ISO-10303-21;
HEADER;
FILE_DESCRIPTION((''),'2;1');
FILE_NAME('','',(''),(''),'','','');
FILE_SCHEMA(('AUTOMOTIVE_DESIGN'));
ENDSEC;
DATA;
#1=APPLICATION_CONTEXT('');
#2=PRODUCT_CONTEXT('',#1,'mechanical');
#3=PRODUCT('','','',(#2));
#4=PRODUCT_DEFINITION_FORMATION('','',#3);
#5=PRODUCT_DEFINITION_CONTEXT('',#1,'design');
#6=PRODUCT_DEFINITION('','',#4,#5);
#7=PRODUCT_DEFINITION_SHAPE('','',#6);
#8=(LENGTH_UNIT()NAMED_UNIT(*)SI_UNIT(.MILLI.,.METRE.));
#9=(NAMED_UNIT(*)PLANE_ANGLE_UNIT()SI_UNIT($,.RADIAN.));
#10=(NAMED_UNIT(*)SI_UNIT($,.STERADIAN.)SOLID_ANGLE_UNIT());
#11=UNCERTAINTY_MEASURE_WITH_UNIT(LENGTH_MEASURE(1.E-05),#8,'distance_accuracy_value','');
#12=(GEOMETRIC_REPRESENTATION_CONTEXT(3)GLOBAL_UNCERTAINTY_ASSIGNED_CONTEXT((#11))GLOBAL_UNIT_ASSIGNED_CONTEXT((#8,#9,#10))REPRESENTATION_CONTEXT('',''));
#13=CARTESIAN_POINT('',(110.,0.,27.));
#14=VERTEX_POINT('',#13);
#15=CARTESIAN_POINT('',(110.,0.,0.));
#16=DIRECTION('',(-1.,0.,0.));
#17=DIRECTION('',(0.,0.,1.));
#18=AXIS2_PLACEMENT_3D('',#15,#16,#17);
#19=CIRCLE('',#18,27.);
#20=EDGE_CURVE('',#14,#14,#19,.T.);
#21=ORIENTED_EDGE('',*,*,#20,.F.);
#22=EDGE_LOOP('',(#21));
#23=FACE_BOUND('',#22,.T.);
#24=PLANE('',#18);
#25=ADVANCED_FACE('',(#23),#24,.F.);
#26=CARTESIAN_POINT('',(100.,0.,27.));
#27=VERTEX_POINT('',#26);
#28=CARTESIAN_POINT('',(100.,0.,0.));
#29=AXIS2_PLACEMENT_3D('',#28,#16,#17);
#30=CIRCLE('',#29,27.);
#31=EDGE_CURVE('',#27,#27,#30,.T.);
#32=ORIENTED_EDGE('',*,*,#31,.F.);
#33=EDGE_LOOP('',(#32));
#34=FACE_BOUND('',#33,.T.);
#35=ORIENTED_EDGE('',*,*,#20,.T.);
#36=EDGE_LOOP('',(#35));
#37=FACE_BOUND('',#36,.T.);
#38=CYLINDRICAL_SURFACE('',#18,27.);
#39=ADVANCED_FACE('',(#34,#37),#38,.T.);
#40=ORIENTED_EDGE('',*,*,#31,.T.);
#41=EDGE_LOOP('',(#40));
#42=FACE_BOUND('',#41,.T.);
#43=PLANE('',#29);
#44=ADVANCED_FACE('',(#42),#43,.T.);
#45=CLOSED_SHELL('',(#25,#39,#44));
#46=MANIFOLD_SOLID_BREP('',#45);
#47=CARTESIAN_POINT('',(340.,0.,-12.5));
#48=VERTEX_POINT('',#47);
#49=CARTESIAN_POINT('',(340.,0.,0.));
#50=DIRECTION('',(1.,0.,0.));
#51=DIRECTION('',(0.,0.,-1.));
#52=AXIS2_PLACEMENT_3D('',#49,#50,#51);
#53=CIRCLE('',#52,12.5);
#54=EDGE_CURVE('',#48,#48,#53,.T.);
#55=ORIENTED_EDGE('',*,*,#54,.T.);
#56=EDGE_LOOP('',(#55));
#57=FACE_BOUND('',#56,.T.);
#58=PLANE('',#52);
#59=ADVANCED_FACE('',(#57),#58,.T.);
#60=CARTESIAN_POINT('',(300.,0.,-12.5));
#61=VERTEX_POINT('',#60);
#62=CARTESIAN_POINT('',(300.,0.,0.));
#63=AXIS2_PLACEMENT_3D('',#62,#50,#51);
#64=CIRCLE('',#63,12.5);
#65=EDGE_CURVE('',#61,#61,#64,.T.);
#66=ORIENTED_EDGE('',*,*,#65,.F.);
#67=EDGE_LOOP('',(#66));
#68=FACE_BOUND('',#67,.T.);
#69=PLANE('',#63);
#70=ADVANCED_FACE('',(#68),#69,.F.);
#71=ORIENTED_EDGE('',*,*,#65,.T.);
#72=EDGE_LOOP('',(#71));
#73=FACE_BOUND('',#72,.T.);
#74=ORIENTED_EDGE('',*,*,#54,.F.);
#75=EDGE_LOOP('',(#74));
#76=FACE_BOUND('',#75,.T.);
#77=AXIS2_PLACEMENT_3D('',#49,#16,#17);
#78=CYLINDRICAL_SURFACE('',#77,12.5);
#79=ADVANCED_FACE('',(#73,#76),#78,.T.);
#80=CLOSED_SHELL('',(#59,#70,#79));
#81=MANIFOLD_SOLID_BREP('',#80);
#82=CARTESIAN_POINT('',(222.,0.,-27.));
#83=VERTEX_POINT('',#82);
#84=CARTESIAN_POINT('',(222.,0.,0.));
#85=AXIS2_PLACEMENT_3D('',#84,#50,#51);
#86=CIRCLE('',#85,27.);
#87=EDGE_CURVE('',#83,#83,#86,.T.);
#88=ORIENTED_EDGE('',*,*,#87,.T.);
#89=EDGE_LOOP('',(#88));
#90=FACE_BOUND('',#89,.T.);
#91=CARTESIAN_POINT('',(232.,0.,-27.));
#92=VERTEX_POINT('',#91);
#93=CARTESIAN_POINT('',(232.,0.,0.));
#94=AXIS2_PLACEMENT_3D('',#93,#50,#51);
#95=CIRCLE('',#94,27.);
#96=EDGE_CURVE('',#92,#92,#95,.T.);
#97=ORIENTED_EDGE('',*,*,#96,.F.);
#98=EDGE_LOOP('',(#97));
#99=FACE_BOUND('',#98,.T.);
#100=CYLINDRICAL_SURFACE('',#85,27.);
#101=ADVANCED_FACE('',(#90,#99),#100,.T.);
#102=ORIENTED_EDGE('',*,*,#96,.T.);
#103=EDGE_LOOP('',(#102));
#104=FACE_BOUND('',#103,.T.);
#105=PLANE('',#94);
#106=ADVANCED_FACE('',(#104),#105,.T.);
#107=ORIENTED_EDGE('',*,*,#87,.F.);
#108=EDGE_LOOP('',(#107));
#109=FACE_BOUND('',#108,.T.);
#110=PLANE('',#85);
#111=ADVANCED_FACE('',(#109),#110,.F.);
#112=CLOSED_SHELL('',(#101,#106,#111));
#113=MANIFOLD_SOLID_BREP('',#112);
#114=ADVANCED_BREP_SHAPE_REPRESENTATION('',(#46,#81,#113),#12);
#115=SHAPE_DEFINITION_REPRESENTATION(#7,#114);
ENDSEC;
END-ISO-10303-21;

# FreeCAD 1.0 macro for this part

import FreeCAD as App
import Part
import Sketcher
from FreeCAD import Vector

doc = App.newDocument("Part")
params = doc.addObject("Spreadsheet::Sheet", "Params")
for row, (alias, value) in enumerate([
    ("sketch1_diameter", "25 mm"),
    ("pad1_length", "40 mm"),
    ("sketch2_diameter", "54 mm"),
    ("pad2_length", "10 mm"),
    ("sketch3_diameter", "54 mm"),
    ("pad3_length", "10 mm"),
], start=1):
    params.set(f"A{row}", alias)
    params.set(f"B{row}", "=" + value)
    params.setAlias(f"B{row}", alias)

body = doc.addObject("PartDesign::Body", "Body")

# Sketch on YZ plane
sketch1 = body.newObject("Sketcher::SketchObject", "Sketch")
sketch1.AttachmentSupport = (doc.getObject("YZ_Plane"), [""])
sketch1.MapMode = "FlatFace"
sketch1.AttachmentOffset = App.Placement(Vector(0, 0, 300), App.Rotation())
sketch1.addGeometry(Part.Circle(Vector(0, 0, 0), Vector(0, 0, 1), 12.5), False)
sketch1.addConstraint(Sketcher.Constraint("Coincident", 0, 3, -1, 1))
sketch1.addConstraint(Sketcher.Constraint("Diameter", 0, 25.0))
sketch1.setExpression("Constraints[1]", "Params.sketch1_diameter")
pad1 = body.newObject("PartDesign::Pad", "Pad")
pad1.Profile = sketch1
pad1.setExpression("Length", "Params.pad1_length")
body2 = doc.addObject("PartDesign::Body", "Body001")

# Sketch on YZ plane
sketch2 = body2.newObject("Sketcher::SketchObject", "Sketch001")
sketch2.AttachmentSupport = (doc.getObject("YZ_Plane001"), [""])
sketch2.MapMode = "FlatFace"
sketch2.AttachmentOffset = App.Placement(Vector(0, 0, 100), App.Rotation())
sketch2.addGeometry(Part.Circle(Vector(0, 0, 0), Vector(0, 0, 1), 27), False)
sketch2.addConstraint(Sketcher.Constraint("Coincident", 0, 3, -1, 1))
sketch2.addConstraint(Sketcher.Constraint("Diameter", 0, 54.0))
sketch2.setExpression("Constraints[1]", "Params.sketch2_diameter")
pad2 = body2.newObject("PartDesign::Pad", "Pad001")
pad2.Profile = sketch2
pad2.setExpression("Length", "Params.pad2_length")
body3 = doc.addObject("PartDesign::Body", "Body002")

# Sketch on YZ plane
sketch3 = body3.newObject("Sketcher::SketchObject", "Sketch002")
sketch3.AttachmentSupport = (doc.getObject("YZ_Plane002"), [""])
sketch3.MapMode = "FlatFace"
sketch3.AttachmentOffset = App.Placement(Vector(0, 0, 232), App.Rotation())
sketch3.addGeometry(Part.Circle(Vector(0, 0, 0), Vector(0, 0, 1), 27), False)
sketch3.addConstraint(Sketcher.Constraint("Coincident", 0, 3, -1, 1))
sketch3.addConstraint(Sketcher.Constraint("Diameter", 0, 54.0))
sketch3.setExpression("Constraints[1]", "Params.sketch3_diameter")
pad3 = body3.newObject("PartDesign::Pad", "Pad002")
pad3.Profile = sketch3
pad3.setExpression("Length", "Params.pad3_length")
pad3.Reversed = True

doc.recompute()
